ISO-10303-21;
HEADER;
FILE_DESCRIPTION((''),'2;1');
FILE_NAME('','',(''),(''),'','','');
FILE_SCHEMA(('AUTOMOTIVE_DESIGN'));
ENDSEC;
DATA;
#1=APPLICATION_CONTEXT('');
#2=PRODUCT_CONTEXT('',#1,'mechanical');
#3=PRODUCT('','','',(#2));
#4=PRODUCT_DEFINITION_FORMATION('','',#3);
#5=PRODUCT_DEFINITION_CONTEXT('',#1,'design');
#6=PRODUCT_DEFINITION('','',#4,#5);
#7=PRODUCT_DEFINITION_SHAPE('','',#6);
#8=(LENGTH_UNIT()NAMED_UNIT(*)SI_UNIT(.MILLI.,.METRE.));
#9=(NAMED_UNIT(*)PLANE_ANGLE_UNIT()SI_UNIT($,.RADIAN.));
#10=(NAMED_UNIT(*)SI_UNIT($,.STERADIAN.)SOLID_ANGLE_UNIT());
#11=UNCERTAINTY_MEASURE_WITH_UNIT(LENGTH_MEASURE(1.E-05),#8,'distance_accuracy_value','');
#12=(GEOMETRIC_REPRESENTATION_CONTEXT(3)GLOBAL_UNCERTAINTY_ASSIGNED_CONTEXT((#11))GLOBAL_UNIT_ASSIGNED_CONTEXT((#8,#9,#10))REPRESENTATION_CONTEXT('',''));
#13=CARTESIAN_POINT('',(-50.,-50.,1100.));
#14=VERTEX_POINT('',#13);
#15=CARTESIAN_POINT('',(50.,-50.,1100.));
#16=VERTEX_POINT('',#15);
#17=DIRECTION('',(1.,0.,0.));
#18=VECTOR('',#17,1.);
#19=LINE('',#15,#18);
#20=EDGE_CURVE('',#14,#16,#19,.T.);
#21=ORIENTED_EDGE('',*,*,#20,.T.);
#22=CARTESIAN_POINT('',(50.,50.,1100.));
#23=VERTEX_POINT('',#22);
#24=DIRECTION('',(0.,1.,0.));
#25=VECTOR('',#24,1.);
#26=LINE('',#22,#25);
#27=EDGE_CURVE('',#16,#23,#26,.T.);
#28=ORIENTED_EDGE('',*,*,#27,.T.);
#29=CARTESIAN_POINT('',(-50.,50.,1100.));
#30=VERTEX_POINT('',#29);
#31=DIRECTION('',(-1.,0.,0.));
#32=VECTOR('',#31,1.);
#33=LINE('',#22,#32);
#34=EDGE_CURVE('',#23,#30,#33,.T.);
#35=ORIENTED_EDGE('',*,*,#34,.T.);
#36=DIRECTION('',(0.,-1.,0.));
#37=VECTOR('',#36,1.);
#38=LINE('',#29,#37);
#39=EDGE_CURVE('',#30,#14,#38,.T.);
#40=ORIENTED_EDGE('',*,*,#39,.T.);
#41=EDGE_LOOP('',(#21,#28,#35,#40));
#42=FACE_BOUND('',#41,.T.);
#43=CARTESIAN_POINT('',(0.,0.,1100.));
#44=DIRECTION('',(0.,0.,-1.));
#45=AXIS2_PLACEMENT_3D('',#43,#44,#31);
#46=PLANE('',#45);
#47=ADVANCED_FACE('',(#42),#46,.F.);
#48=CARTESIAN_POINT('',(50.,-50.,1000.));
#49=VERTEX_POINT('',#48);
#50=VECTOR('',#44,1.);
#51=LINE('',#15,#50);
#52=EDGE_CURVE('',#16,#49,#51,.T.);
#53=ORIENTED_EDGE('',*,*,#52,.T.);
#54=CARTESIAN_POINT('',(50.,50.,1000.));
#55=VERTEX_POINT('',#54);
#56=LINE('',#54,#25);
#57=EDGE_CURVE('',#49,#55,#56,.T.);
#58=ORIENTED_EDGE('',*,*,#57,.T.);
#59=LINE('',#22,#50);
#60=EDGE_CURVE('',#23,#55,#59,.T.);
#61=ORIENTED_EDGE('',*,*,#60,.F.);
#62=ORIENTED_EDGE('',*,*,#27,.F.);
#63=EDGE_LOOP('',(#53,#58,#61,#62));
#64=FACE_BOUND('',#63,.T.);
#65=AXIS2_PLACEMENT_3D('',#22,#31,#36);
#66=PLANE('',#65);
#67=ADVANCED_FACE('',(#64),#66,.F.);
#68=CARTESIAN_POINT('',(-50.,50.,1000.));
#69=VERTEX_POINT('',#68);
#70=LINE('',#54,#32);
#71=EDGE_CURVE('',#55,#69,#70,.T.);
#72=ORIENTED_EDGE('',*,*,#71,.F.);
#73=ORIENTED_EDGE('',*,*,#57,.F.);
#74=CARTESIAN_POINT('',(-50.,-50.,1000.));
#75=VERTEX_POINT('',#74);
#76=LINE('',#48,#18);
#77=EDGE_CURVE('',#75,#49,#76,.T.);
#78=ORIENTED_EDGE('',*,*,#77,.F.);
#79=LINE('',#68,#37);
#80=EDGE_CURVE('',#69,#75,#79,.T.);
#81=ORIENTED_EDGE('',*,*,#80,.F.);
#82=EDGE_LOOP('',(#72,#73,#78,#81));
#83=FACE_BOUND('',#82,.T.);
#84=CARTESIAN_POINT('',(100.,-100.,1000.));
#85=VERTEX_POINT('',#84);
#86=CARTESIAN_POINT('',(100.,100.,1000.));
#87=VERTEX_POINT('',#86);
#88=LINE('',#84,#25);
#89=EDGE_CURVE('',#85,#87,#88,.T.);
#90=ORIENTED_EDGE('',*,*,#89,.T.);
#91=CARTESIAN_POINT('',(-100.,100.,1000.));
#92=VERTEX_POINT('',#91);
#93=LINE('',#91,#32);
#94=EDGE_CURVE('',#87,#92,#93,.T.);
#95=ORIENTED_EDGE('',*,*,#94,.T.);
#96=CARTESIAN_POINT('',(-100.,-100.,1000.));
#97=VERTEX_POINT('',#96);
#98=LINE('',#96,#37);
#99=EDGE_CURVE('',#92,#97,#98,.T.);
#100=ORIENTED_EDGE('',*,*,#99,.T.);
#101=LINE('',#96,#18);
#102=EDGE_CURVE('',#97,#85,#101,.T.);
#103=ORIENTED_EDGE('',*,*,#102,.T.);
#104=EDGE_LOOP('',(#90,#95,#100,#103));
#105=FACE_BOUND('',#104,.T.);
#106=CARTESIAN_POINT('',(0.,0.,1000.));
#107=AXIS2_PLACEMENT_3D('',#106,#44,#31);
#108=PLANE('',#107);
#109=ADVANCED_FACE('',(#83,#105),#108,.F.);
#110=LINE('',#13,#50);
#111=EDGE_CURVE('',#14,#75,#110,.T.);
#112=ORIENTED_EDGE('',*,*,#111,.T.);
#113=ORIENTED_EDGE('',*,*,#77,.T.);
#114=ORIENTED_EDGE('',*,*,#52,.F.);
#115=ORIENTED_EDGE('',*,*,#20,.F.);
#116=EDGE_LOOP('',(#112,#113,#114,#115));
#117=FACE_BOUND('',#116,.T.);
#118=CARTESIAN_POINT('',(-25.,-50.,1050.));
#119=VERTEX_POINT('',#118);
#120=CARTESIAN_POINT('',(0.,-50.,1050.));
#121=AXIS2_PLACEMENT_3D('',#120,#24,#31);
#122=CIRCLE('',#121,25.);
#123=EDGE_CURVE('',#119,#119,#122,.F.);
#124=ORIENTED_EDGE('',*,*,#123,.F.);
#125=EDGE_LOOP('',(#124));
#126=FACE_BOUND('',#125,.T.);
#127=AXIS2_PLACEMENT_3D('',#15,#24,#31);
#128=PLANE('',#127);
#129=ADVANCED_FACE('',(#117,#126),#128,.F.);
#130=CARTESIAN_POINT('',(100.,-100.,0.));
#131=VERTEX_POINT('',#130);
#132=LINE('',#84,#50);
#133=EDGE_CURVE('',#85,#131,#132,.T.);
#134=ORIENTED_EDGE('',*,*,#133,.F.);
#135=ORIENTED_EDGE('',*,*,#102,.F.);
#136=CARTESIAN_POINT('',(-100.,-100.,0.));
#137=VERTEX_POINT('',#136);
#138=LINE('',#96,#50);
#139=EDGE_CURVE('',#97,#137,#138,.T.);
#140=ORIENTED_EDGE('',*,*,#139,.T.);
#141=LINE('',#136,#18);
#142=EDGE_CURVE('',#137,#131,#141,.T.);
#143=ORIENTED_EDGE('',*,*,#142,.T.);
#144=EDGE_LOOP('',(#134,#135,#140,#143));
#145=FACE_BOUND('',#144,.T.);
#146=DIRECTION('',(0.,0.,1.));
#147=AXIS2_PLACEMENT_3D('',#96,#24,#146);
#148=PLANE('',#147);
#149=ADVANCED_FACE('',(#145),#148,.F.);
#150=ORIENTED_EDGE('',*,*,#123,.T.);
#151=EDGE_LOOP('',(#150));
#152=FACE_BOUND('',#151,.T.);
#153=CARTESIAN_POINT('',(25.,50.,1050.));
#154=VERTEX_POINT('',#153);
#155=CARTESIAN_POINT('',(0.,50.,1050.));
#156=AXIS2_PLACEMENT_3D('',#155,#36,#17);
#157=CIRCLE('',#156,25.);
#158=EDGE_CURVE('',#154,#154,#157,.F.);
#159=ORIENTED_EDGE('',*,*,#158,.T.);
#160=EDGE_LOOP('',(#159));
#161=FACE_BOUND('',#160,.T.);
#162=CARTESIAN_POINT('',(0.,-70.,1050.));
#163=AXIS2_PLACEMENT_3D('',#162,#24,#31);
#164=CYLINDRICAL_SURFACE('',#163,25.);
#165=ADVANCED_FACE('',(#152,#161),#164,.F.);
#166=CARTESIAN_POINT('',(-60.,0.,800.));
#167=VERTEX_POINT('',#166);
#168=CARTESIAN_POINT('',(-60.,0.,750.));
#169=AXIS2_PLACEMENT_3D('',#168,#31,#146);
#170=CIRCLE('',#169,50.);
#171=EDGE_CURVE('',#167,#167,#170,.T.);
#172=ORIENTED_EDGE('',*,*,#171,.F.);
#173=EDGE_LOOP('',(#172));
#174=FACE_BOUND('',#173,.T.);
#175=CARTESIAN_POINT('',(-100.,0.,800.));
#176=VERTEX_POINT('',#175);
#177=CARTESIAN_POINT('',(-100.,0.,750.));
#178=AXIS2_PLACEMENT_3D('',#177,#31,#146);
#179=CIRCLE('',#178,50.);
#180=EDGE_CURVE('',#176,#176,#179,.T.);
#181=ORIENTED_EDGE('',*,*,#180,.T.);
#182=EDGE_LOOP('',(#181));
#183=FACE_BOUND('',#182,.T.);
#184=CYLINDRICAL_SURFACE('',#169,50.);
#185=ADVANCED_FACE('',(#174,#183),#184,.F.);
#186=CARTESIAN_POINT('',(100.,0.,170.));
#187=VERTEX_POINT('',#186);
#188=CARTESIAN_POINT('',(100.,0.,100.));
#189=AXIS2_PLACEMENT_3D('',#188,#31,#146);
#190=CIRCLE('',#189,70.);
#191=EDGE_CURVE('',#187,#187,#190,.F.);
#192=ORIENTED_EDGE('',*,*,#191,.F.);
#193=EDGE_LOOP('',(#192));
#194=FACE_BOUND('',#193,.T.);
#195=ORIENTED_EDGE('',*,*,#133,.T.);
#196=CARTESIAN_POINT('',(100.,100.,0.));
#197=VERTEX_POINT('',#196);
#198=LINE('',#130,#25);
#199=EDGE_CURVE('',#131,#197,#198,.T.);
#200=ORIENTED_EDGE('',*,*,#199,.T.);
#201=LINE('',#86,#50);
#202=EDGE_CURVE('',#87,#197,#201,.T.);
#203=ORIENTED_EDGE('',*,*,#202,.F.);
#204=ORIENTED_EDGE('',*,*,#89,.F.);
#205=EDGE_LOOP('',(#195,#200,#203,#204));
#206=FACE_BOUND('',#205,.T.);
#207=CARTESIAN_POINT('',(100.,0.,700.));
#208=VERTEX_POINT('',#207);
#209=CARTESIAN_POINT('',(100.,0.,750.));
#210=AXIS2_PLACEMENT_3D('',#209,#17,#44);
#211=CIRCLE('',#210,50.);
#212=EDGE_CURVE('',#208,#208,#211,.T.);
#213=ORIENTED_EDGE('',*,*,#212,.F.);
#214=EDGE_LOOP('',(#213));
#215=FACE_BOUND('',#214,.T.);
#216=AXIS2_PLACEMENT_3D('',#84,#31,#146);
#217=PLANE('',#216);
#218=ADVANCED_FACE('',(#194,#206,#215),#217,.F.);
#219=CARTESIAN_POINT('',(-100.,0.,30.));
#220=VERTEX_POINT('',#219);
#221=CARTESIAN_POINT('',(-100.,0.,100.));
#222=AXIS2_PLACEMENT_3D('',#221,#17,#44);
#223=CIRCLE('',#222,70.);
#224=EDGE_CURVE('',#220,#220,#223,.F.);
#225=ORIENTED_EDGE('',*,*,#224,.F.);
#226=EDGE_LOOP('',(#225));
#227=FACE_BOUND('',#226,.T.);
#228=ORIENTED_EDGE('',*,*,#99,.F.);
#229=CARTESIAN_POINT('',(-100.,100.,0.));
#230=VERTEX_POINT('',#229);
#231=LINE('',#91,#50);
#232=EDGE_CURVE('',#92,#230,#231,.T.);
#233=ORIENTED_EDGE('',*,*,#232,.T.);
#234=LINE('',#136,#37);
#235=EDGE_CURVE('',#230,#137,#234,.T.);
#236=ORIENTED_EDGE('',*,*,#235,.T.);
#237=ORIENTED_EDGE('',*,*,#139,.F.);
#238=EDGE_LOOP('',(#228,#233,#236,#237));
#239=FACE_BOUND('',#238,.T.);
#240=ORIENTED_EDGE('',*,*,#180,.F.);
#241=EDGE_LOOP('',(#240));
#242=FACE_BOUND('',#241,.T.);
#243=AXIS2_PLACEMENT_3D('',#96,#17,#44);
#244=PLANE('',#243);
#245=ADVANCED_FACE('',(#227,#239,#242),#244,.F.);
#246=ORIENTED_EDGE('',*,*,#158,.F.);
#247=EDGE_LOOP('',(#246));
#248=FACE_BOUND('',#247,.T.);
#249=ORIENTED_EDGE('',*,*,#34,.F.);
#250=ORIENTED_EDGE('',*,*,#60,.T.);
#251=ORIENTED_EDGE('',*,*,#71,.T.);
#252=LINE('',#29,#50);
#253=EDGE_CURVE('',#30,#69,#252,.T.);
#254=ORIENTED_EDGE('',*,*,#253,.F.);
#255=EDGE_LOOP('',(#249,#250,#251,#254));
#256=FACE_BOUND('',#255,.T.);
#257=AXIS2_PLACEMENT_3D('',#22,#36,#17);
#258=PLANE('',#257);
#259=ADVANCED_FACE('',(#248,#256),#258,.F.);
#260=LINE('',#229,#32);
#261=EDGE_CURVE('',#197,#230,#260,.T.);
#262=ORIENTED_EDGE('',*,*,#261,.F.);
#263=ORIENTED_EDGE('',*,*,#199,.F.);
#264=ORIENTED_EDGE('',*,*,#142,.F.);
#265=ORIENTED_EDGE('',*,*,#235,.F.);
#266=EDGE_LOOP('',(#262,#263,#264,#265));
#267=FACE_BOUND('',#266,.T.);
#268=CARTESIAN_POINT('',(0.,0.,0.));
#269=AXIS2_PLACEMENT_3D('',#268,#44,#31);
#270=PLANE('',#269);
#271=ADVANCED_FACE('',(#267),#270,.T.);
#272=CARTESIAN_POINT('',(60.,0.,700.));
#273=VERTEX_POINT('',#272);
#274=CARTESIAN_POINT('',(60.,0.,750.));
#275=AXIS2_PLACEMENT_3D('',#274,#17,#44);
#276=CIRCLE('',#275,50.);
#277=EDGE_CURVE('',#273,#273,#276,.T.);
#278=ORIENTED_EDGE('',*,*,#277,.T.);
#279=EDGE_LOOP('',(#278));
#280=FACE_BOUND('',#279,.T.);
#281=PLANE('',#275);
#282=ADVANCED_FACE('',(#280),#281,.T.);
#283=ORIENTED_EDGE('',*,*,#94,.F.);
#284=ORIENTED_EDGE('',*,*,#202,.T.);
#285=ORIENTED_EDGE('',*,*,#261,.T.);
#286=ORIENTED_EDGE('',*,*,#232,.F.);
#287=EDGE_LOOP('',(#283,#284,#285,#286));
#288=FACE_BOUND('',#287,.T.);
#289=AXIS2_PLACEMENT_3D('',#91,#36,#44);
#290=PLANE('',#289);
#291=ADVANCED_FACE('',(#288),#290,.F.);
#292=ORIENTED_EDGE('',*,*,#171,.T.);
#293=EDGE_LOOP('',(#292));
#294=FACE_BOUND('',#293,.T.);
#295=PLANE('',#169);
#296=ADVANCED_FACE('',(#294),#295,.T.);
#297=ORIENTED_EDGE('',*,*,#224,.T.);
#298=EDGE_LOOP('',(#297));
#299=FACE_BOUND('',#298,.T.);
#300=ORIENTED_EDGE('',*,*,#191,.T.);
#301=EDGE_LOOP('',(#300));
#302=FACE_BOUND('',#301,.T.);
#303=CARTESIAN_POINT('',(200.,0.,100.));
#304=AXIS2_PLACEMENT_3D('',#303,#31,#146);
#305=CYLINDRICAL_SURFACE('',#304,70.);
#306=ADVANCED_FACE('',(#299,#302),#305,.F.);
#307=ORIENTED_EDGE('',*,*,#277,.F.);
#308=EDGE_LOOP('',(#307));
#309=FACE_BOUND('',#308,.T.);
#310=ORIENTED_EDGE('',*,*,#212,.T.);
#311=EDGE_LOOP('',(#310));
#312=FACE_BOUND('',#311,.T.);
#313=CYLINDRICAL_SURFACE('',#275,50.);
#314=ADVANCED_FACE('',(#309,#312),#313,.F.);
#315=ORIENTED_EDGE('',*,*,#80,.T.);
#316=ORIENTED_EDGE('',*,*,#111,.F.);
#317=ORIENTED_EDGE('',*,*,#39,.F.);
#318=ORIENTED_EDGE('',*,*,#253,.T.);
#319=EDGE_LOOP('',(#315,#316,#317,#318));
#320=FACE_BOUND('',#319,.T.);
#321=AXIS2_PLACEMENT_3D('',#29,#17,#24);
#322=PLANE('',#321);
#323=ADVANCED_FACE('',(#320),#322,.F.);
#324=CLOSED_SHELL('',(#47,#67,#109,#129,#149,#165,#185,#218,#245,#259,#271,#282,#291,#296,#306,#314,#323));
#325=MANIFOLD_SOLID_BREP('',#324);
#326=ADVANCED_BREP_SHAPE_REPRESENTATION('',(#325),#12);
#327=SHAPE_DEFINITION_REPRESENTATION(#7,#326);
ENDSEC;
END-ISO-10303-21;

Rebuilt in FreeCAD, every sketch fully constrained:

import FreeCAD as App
import Part
import Sketcher

V = App.Vector


def add_polygon(sketch, points):
    """Adds a closed chain of lines whose ends are joined by coincident constraints."""
    first, n = sketch.GeometryCount, len(points)
    for a, b in zip(points, points[1:] + points[:1]):
        sketch.addGeometry(Part.LineSegment(App.Vector(*a, 0), App.Vector(*b, 0)), False)
    for i in range(n):
        sketch.addConstraint(Sketcher.Constraint("Coincident", first + i, 2, first + (i + 1) % n, 1))

doc = App.newDocument("Part")
body = doc.addObject("PartDesign::Body", "Body")

sketch1 = body.newObject("Sketcher::SketchObject", "Sketch")
sketch1.AttachmentSupport = (doc.getObject("XY_Plane"), [""])
sketch1.MapMode = "FlatFace"
add_polygon(sketch1, [(-100, 100), (-100, -100), (100, -100), (100, 100)])
sketch1.addConstraint([
    Sketcher.Constraint("Vertical", 0),
    Sketcher.Constraint("Horizontal", 1),
    Sketcher.Constraint("Vertical", 2),
    Sketcher.Constraint("Horizontal", 3),
    Sketcher.Constraint("Symmetric", 0, 2, 2, 2, -1, 1),
    Sketcher.Constraint("Equal", 3, 0),
    Sketcher.Constraint("DistanceX", 1, 1, 1, 2, 200.0),
])
pad1 = body.newObject("PartDesign::Pad", "Pad")
pad1.Profile = sketch1
pad1.Length = 1000

sketch2 = body.newObject("Sketcher::SketchObject", "Sketch001")
sketch2.AttachmentSupport = (doc.getObject("YZ_Plane"), [""])
sketch2.MapMode = "FlatFace"
sketch2.AttachmentOffset = App.Placement(V(0, 0, 100), App.Rotation())
sketch2.addGeometry(Part.Circle(V(0, 100, 0), V(0, 0, 1), 70), False)
sketch2.addConstraint([
    Sketcher.Constraint("PointOnObject", 0, 3, -2),
    Sketcher.Constraint("Diameter", 0, 140.0),
    Sketcher.Constraint("DistanceY", -1, 1, 0, 3, 100.0),
])
pocket1 = body.newObject("PartDesign::Pocket", "Pocket")
pocket1.Profile = sketch2
pocket1.Type = "ThroughAll"
pocket1.Midplane = True

sketch3 = body.newObject("Sketcher::SketchObject", "Sketch002")
sketch3.AttachmentSupport = (doc.getObject("XY_Plane"), [""])
sketch3.MapMode = "FlatFace"
sketch3.AttachmentOffset = App.Placement(V(0, 0, 1000), App.Rotation())
add_polygon(sketch3, [(-50, 50), (-50, -50), (50, -50), (50, 50)])
sketch3.addConstraint([
    Sketcher.Constraint("Vertical", 0),
    Sketcher.Constraint("Horizontal", 1),
    Sketcher.Constraint("Vertical", 2),
    Sketcher.Constraint("Horizontal", 3),
    Sketcher.Constraint("Symmetric", 0, 2, 2, 2, -1, 1),
    Sketcher.Constraint("Equal", 3, 0),
    Sketcher.Constraint("DistanceX", 1, 1, 1, 2, 100.0),
])
pad2 = body.newObject("PartDesign::Pad", "Pad001")
pad2.Profile = sketch3
pad2.Length = 100

sketch4 = body.newObject("Sketcher::SketchObject", "Sketch003")
sketch4.AttachmentSupport = (doc.getObject("XZ_Plane"), [""])
sketch4.MapMode = "FlatFace"
sketch4.AttachmentOffset = App.Placement(V(0, 0, 50), App.Rotation())
sketch4.addGeometry(Part.Circle(V(0, 1050, 0), V(0, 0, 1), 25), False)
sketch4.addConstraint([
    Sketcher.Constraint("PointOnObject", 0, 3, -2),
    Sketcher.Constraint("Diameter", 0, 50.0),
    Sketcher.Constraint("DistanceY", -1, 1, 0, 3, 1050.0),
])
pocket2 = body.newObject("PartDesign::Pocket", "Pocket001")
pocket2.Profile = sketch4
pocket2.Type = "ThroughAll"
pocket2.Midplane = True

sketch5 = body.newObject("Sketcher::SketchObject", "Sketch004")
sketch5.AttachmentSupport = (doc.getObject("YZ_Plane"), [""])
sketch5.MapMode = "FlatFace"
sketch5.AttachmentOffset = App.Placement(V(0, 0, -100), App.Rotation())
sketch5.addGeometry(Part.Circle(V(0, 750, 0), V(0, 0, 1), 50), False)
sketch5.addConstraint([
    Sketcher.Constraint("PointOnObject", 0, 3, -2),
    Sketcher.Constraint("Diameter", 0, 100.0),
    Sketcher.Constraint("DistanceY", -1, 1, 0, 3, 750.0),
])
pocket3 = body.newObject("PartDesign::Pocket", "Pocket002")
pocket3.Profile = sketch5
pocket3.Length = 40
pocket3.Reversed = True

sketch6 = body.newObject("Sketcher::SketchObject", "Sketch005")
sketch6.AttachmentSupport = (doc.getObject("YZ_Plane"), [""])
sketch6.MapMode = "FlatFace"
sketch6.AttachmentOffset = App.Placement(V(0, 0, 60), App.Rotation())
sketch6.addGeometry(Part.Circle(V(0, 750, 0), V(0, 0, 1), 50), False)
sketch6.addConstraint([
    Sketcher.Constraint("PointOnObject", 0, 3, -2),
    Sketcher.Constraint("Diameter", 0, 100.0),
    Sketcher.Constraint("DistanceY", -1, 1, 0, 3, 750.0),
])
pocket4 = body.newObject("PartDesign::Pocket", "Pocket003")
pocket4.Profile = sketch6
pocket4.Length = 40
pocket4.Reversed = True

doc.recompute()
